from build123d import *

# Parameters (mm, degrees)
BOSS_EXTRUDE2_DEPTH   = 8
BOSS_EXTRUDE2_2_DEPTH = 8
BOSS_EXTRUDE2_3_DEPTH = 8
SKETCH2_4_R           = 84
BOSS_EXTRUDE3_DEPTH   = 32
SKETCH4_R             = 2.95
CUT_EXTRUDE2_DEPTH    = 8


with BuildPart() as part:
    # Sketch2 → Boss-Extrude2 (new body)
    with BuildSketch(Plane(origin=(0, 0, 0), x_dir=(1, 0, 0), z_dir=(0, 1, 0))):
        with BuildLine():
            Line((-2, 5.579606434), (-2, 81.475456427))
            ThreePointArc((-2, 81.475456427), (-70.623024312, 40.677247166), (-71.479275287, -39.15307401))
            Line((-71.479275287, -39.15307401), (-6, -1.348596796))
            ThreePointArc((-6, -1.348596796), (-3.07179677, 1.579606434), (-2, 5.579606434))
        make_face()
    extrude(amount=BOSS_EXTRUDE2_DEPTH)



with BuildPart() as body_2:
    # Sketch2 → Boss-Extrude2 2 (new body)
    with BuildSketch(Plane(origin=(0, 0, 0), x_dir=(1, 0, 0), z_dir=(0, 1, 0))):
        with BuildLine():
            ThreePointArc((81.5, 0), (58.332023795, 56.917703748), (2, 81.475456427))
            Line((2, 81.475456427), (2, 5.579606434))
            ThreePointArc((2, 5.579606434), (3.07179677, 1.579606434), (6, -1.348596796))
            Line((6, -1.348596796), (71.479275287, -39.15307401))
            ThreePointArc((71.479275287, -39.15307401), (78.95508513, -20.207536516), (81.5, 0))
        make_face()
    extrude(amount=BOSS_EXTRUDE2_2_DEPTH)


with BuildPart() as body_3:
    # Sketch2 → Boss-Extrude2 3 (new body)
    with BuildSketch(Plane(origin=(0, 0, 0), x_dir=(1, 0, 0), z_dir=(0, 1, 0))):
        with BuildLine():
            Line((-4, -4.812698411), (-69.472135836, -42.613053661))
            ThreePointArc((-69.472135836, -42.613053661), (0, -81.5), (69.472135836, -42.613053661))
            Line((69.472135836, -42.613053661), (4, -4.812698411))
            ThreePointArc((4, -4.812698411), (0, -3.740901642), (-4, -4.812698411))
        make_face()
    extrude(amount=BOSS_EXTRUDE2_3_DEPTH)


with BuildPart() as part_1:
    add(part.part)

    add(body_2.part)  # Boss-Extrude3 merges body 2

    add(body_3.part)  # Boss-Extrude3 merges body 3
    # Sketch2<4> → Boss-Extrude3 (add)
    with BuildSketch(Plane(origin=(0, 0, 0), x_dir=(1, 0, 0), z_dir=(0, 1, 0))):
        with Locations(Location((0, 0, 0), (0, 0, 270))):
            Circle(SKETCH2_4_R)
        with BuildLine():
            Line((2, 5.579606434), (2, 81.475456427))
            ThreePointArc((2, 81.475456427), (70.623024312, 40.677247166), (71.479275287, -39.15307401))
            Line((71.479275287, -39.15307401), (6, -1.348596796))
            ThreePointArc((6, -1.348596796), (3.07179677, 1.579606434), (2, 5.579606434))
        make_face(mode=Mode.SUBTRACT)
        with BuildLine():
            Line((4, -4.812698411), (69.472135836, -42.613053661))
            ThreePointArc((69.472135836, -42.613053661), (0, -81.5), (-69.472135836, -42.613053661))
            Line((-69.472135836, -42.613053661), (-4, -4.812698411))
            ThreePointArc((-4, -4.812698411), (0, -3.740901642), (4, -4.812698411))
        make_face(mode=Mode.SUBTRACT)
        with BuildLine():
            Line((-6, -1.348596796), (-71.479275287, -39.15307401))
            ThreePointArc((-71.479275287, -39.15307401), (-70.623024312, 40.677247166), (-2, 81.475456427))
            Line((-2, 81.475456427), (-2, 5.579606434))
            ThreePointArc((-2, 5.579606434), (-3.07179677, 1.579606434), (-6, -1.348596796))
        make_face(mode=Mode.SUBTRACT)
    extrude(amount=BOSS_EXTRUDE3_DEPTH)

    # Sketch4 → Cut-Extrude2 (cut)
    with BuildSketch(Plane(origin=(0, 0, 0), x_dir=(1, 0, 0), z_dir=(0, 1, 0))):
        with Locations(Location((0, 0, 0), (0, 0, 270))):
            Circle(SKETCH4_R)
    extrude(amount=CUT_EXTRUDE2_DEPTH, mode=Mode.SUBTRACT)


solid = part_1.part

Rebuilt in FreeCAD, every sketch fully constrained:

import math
import FreeCAD as App
import Part
import Sketcher
Q = App.Units.Quantity

doc = App.newDocument("Part")
body = doc.addObject("PartDesign::Body", "Body")

sketch1 = doc.addObject("Sketcher::SketchObject", "Sketch")
body.addObject(sketch1)
sketch1.AttachmentSupport = (doc.XZ_Plane, [""])
sketch1.MapMode = "FlatFace"
sketch1.addGeometry([
    Part.LineSegment(App.Vector(-2, -5.579606, 0), App.Vector(-2, -81.475456, 0)),
    Part.ArcOfCircle(Part.Circle(App.Vector(0, 0, 0), App.Vector(0, 0, 1), 81.5), math.radians(151.28809), math.radians(268.593827)),
    Part.LineSegment(App.Vector(-71.479275, 39.153074, 0), App.Vector(-6, 1.348597, 0)),
    Part.ArcOfCircle(Part.Circle(App.Vector(-10, -5.579606, 0), App.Vector(0, 0, 1), 8), math.radians(0), math.radians(60)),
], False)
sketch1.addConstraint([
    Sketcher.Constraint("Coincident", 0, 2, 1, 2),
    Sketcher.Constraint("Coincident", 1, 1, 2, 1),
    Sketcher.Constraint("Tangent", 2, 2, 3, 2),
    Sketcher.Constraint("Tangent", 3, 1, 0, 1),
    Sketcher.Constraint("Vertical", 0),
    Sketcher.Constraint("Coincident", 1, 3, -1, 1),
    Sketcher.Constraint("Radius", 3, 8.0),
    Sketcher.Constraint("Radius", 1, 81.5),
    Sketcher.Constraint("Angle", 2, Q("-30 deg")),
    Sketcher.Constraint("DistanceX", 3, 3, -1, 1, 10.0),
    Sketcher.Constraint("DistanceY", 0, 2, 0, 1, 75.89585),
])
pad1 = doc.addObject("PartDesign::Pad", "Pad")
body.addObject(pad1)
pad1.Profile = sketch1
pad1.Length = 8
pad1.Reversed = True
body2 = doc.addObject("PartDesign::Body", "Body001")

sketch2 = doc.addObject("Sketcher::SketchObject", "Sketch001")
body2.addObject(sketch2)
sketch2.AttachmentSupport = (doc.getObject("XZ_Plane001"), [""])
sketch2.MapMode = "FlatFace"
sketch2.addGeometry([
    Part.ArcOfCircle(Part.Circle(App.Vector(0, 0, 0), App.Vector(0, 0, 1), 81.5), math.radians(-88.593827), math.radians(0)),
    Part.LineSegment(App.Vector(2, -81.475456, 0), App.Vector(2, -5.579606, 0)),
    Part.ArcOfCircle(Part.Circle(App.Vector(10, -5.579606, 0), App.Vector(0, 0, 1), 8), math.radians(120), math.radians(180)),
    Part.LineSegment(App.Vector(6, 1.348597, 0), App.Vector(71.479275, 39.153074, 0)),
    Part.ArcOfCircle(Part.Circle(App.Vector(0, 0, 0), App.Vector(0, 0, 1), 81.5), math.radians(0), math.radians(28.71191)),
], False)
sketch2.addConstraint([
    Sketcher.Constraint("Coincident", 0, 1, 1, 1),
    Sketcher.Constraint("Tangent", 1, 2, 2, 2),
    Sketcher.Constraint("Tangent", 2, 1, 3, 1),
    Sketcher.Constraint("Coincident", 3, 2, 4, 2),
    Sketcher.Constraint("Tangent", 4, 1, 0, 2),
    Sketcher.Constraint("Vertical", 1),
    Sketcher.Constraint("Coincident", 0, 3, -1, 1),
    Sketcher.Constraint("Equal", 0, 4),
    Sketcher.Constraint("PointOnObject", 4, 1, -1),
    Sketcher.Constraint("Radius", 2, 8.0),
    Sketcher.Constraint("Radius", 0, 81.5),
    Sketcher.Constraint("Angle", 3, Q("30 deg")),
    Sketcher.Constraint("DistanceX", -1, 1, 2, 3, 10.0),
    Sketcher.Constraint("DistanceY", 1, 1, 1, 2, 75.89585),
])
pad2 = doc.addObject("PartDesign::Pad", "Pad001")
body2.addObject(pad2)
pad2.Profile = sketch2
pad2.Length = 8
pad2.Reversed = True
body3 = doc.addObject("PartDesign::Body", "Body002")

sketch3 = doc.addObject("Sketcher::SketchObject", "Sketch002")
body3.addObject(sketch3)
sketch3.AttachmentSupport = (doc.getObject("XZ_Plane002"), [""])
sketch3.MapMode = "FlatFace"
sketch3.addGeometry([
    Part.LineSegment(App.Vector(-4, 4.812698, 0), App.Vector(-69.472136, 42.613054, 0)),
    Part.ArcOfCircle(Part.Circle(App.Vector(0, 0, 0), App.Vector(0, 0, 1), 81.5), math.radians(31.524261), math.radians(148.475739)),
    Part.LineSegment(App.Vector(69.472136, 42.613054, 0), App.Vector(4, 4.812698, 0)),
    Part.ArcOfCircle(Part.Circle(App.Vector(0, 11.740902, 0), App.Vector(0, 0, 1), 8), math.radians(-120), math.radians(-60)),
], False)
sketch3.addConstraint([
    Sketcher.Constraint("Coincident", 0, 2, 1, 2),
    Sketcher.Constraint("Coincident", 1, 1, 2, 1),
    Sketcher.Constraint("Tangent", 2, 2, 3, 2),
    Sketcher.Constraint("Tangent", 3, 1, 0, 1),
    Sketcher.Constraint("Coincident", 1, 3, -1, 1),
    Sketcher.Constraint("Symmetric", 2, 2, 3, 1, -2),
    Sketcher.Constraint("Radius", 3, 8.0),
    Sketcher.Constraint("Radius", 1, 81.5),
    Sketcher.Constraint("Angle", 0, Q("150 deg")),
    Sketcher.Constraint("DistanceY", -1, 1, 3, 3, 11.740902),
])
pad3 = doc.addObject("PartDesign::Pad", "Pad002")
body3.addObject(pad3)
pad3.Profile = sketch3
pad3.Length = 8
pad3.Reversed = True
body.AllowCompound = True
doc.recompute()

boolean = doc.addObject("PartDesign::Boolean", "Boolean")
body.addObject(boolean)
boolean.Type = "Fuse"
boolean.addObjects([body2])
doc.recompute()

boolean2 = doc.addObject("PartDesign::Boolean", "Boolean001")
body.addObject(boolean2)
boolean2.Type = "Fuse"
boolean2.addObjects([body3])

sketch4 = doc.addObject("Sketcher::SketchObject", "Sketch003")
body.addObject(sketch4)
sketch4.AttachmentSupport = (doc.XZ_Plane, [""])
sketch4.MapMode = "FlatFace"
sketch4.addGeometry([
    Part.Circle(App.Vector(0, 0, 0), App.Vector(0, 0, 1), 84),
    Part.ArcOfCircle(Part.Circle(App.Vector(-10, -5.579606, 0), App.Vector(0, 0, 1), 8), math.radians(0), math.radians(60)),
    Part.LineSegment(App.Vector(-6, 1.348597, 0), App.Vector(-71.479275, 39.153074, 0)),
    Part.ArcOfCircle(Part.Circle(App.Vector(0, 0, 0), App.Vector(0, 0, 1), 81.5), math.radians(151.28809), math.radians(268.593827)),
    Part.LineSegment(App.Vector(-2, -81.475456, 0), App.Vector(-2, -5.579606, 0)),
    Part.ArcOfCircle(Part.Circle(App.Vector(10, -5.579606, 0), App.Vector(0, 0, 1), 8), math.radians(120), math.radians(180)),
    Part.LineSegment(App.Vector(2, -5.579606, 0), App.Vector(2, -81.475456, 0)),
    Part.ArcOfCircle(Part.Circle(App.Vector(0, 0, 0), App.Vector(0, 0, 1), 81.5), math.radians(-88.593827), math.radians(28.71191)),
    Part.LineSegment(App.Vector(71.479275, 39.153074, 0), App.Vector(6, 1.348597, 0)),
    Part.ArcOfCircle(Part.Circle(App.Vector(0, 11.740902, 0), App.Vector(0, 0, 1), 8), math.radians(-120), math.radians(-60)),
    Part.LineSegment(App.Vector(4, 4.812698, 0), App.Vector(69.472136, 42.613054, 0)),
    Part.ArcOfCircle(Part.Circle(App.Vector(0, 0, 0), App.Vector(0, 0, 1), 81.5), math.radians(31.524261), math.radians(148.475739)),
    Part.LineSegment(App.Vector(-69.472136, 42.613054, 0), App.Vector(-4, 4.812698, 0)),
], False)
sketch4.addConstraint([
    Sketcher.Constraint("Tangent", 1, 2, 2, 1),
    Sketcher.Constraint("Coincident", 2, 2, 3, 1),
    Sketcher.Constraint("Coincident", 3, 2, 4, 1),
    Sketcher.Constraint("Tangent", 4, 2, 1, 1),
    Sketcher.Constraint("Tangent", 5, 2, 6, 1),
    Sketcher.Constraint("Coincident", 6, 2, 7, 1),
    Sketcher.Constraint("Coincident", 7, 2, 8, 1),
    Sketcher.Constraint("Tangent", 8, 2, 5, 1),
    Sketcher.Constraint("Tangent", 9, 2, 10, 1),
    Sketcher.Constraint("Coincident", 10, 2, 11, 1),
    Sketcher.Constraint("Coincident", 11, 2, 12, 1),
    Sketcher.Constraint("Tangent", 12, 2, 9, 1),
    Sketcher.Constraint("Vertical", 4),
    Sketcher.Constraint("Vertical", 6),
    Sketcher.Constraint("Coincident", 0, 3, -1, 1),
    Sketcher.Constraint("Coincident", 3, 3, -1, 1),
    Sketcher.Constraint("Coincident", 7, 3, -1, 1),
    Sketcher.Constraint("Coincident", 11, 3, -1, 1),
    Sketcher.Constraint("Equal", 1, 5),
    Sketcher.Constraint("Equal", 3, 7),
    Sketcher.Constraint("Equal", 5, 9),
    Sketcher.Constraint("Equal", 7, 11),
    Sketcher.Constraint("Symmetric", 1, 3, 5, 3, -2),
    Sketcher.Constraint("Symmetric", 9, 2, 12, 2, -2),
    Sketcher.Constraint("Parallel", 8, 10),
    Sketcher.Constraint("Parallel", 2, 12),
    Sketcher.Constraint("Diameter", 0, 168.0),
    Sketcher.Constraint("Radius", 1, 8.0),
    Sketcher.Constraint("Radius", 3, 81.5),
    Sketcher.Constraint("Angle", 2, Q("150 deg")),
    Sketcher.Constraint("DistanceX", 1, 3, -1, 1, 10.0),
    Sketcher.Constraint("DistanceY", 4, 1, 4, 2, 75.89585),
    Sketcher.Constraint("DistanceY", -1, 1, 9, 3, 11.740902),
])
pad4 = doc.addObject("PartDesign::Pad", "Pad003")
body.addObject(pad4)
pad4.Profile = sketch4
pad4.Length = 32
pad4.Reversed = True

sketch5 = doc.addObject("Sketcher::SketchObject", "Sketch004")
body.addObject(sketch5)
sketch5.AttachmentSupport = (doc.XZ_Plane, [""])
sketch5.MapMode = "FlatFace"
sketch5.addGeometry(Part.Circle(App.Vector(0, 0, 0), App.Vector(0, 0, 1), 2.95), False)
sketch5.addConstraint([
    Sketcher.Constraint("Coincident", 0, 3, -1, 1),
    Sketcher.Constraint("Diameter", 0, 5.9),
])
pocket1 = doc.addObject("PartDesign::Pocket", "Pocket")
body.addObject(pocket1)
pocket1.Profile = sketch5
pocket1.Length = 8

doc.recompute()
